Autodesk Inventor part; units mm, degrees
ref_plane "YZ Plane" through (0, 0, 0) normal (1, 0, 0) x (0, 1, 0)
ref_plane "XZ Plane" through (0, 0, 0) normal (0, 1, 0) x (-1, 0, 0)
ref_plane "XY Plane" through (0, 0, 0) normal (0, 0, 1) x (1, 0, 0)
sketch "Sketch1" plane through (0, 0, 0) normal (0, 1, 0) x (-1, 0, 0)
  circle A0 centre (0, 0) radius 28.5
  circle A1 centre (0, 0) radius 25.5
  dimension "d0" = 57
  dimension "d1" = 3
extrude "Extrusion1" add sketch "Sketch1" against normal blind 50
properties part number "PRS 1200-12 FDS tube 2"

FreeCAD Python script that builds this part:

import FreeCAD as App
import Part
import Sketcher
from FreeCAD import Vector
Q = App.Units.Quantity

doc = App.newDocument("Part")
params = doc.addObject("Spreadsheet::Sheet", "Params")
for row, (alias, value) in enumerate([
    ("sketch1_diameter", "57 mm"),
    ("sketch1_diameter2", "51 mm"),
    ("pad1_length", "50 mm"),
], start=1):
    params.set(f"A{row}", alias)
    params.set(f"B{row}", "=" + value)
    params.setAlias(f"B{row}", alias)

body = doc.addObject("PartDesign::Body", "Body")

# Sketch on XZ plane
sketch1 = body.newObject("Sketcher::SketchObject", "Sketch")
sketch1.AttachmentSupport = (doc.getObject("XZ_Plane"), [""])
sketch1.MapMode = "FlatFace"
sketch1.addGeometry([
    Part.Circle(Vector(0, 0, 0), Vector(0, 0, 1), 28),
    Part.Circle(Vector(0, 0, 0), Vector(0, 0, 1), 26),
], False)
sketch1.addConstraint([
    Sketcher.Constraint("Coincident", 0, 3, -1, 1),
    Sketcher.Constraint("Coincident", 1, 3, -1, 1),
    Sketcher.Constraint("Diameter", 0, Q("57 mm")),
    Sketcher.Constraint("Diameter", 1, Q("51 mm")),
])
sketch1.setExpression("Constraints[2]", "Params.sketch1_diameter")
sketch1.setExpression("Constraints[3]", "Params.sketch1_diameter2")
pad1 = body.newObject("PartDesign::Pad", "Pad")
pad1.Profile = sketch1
pad1.setExpression("Length", "Params.pad1_length")

doc.recompute()
